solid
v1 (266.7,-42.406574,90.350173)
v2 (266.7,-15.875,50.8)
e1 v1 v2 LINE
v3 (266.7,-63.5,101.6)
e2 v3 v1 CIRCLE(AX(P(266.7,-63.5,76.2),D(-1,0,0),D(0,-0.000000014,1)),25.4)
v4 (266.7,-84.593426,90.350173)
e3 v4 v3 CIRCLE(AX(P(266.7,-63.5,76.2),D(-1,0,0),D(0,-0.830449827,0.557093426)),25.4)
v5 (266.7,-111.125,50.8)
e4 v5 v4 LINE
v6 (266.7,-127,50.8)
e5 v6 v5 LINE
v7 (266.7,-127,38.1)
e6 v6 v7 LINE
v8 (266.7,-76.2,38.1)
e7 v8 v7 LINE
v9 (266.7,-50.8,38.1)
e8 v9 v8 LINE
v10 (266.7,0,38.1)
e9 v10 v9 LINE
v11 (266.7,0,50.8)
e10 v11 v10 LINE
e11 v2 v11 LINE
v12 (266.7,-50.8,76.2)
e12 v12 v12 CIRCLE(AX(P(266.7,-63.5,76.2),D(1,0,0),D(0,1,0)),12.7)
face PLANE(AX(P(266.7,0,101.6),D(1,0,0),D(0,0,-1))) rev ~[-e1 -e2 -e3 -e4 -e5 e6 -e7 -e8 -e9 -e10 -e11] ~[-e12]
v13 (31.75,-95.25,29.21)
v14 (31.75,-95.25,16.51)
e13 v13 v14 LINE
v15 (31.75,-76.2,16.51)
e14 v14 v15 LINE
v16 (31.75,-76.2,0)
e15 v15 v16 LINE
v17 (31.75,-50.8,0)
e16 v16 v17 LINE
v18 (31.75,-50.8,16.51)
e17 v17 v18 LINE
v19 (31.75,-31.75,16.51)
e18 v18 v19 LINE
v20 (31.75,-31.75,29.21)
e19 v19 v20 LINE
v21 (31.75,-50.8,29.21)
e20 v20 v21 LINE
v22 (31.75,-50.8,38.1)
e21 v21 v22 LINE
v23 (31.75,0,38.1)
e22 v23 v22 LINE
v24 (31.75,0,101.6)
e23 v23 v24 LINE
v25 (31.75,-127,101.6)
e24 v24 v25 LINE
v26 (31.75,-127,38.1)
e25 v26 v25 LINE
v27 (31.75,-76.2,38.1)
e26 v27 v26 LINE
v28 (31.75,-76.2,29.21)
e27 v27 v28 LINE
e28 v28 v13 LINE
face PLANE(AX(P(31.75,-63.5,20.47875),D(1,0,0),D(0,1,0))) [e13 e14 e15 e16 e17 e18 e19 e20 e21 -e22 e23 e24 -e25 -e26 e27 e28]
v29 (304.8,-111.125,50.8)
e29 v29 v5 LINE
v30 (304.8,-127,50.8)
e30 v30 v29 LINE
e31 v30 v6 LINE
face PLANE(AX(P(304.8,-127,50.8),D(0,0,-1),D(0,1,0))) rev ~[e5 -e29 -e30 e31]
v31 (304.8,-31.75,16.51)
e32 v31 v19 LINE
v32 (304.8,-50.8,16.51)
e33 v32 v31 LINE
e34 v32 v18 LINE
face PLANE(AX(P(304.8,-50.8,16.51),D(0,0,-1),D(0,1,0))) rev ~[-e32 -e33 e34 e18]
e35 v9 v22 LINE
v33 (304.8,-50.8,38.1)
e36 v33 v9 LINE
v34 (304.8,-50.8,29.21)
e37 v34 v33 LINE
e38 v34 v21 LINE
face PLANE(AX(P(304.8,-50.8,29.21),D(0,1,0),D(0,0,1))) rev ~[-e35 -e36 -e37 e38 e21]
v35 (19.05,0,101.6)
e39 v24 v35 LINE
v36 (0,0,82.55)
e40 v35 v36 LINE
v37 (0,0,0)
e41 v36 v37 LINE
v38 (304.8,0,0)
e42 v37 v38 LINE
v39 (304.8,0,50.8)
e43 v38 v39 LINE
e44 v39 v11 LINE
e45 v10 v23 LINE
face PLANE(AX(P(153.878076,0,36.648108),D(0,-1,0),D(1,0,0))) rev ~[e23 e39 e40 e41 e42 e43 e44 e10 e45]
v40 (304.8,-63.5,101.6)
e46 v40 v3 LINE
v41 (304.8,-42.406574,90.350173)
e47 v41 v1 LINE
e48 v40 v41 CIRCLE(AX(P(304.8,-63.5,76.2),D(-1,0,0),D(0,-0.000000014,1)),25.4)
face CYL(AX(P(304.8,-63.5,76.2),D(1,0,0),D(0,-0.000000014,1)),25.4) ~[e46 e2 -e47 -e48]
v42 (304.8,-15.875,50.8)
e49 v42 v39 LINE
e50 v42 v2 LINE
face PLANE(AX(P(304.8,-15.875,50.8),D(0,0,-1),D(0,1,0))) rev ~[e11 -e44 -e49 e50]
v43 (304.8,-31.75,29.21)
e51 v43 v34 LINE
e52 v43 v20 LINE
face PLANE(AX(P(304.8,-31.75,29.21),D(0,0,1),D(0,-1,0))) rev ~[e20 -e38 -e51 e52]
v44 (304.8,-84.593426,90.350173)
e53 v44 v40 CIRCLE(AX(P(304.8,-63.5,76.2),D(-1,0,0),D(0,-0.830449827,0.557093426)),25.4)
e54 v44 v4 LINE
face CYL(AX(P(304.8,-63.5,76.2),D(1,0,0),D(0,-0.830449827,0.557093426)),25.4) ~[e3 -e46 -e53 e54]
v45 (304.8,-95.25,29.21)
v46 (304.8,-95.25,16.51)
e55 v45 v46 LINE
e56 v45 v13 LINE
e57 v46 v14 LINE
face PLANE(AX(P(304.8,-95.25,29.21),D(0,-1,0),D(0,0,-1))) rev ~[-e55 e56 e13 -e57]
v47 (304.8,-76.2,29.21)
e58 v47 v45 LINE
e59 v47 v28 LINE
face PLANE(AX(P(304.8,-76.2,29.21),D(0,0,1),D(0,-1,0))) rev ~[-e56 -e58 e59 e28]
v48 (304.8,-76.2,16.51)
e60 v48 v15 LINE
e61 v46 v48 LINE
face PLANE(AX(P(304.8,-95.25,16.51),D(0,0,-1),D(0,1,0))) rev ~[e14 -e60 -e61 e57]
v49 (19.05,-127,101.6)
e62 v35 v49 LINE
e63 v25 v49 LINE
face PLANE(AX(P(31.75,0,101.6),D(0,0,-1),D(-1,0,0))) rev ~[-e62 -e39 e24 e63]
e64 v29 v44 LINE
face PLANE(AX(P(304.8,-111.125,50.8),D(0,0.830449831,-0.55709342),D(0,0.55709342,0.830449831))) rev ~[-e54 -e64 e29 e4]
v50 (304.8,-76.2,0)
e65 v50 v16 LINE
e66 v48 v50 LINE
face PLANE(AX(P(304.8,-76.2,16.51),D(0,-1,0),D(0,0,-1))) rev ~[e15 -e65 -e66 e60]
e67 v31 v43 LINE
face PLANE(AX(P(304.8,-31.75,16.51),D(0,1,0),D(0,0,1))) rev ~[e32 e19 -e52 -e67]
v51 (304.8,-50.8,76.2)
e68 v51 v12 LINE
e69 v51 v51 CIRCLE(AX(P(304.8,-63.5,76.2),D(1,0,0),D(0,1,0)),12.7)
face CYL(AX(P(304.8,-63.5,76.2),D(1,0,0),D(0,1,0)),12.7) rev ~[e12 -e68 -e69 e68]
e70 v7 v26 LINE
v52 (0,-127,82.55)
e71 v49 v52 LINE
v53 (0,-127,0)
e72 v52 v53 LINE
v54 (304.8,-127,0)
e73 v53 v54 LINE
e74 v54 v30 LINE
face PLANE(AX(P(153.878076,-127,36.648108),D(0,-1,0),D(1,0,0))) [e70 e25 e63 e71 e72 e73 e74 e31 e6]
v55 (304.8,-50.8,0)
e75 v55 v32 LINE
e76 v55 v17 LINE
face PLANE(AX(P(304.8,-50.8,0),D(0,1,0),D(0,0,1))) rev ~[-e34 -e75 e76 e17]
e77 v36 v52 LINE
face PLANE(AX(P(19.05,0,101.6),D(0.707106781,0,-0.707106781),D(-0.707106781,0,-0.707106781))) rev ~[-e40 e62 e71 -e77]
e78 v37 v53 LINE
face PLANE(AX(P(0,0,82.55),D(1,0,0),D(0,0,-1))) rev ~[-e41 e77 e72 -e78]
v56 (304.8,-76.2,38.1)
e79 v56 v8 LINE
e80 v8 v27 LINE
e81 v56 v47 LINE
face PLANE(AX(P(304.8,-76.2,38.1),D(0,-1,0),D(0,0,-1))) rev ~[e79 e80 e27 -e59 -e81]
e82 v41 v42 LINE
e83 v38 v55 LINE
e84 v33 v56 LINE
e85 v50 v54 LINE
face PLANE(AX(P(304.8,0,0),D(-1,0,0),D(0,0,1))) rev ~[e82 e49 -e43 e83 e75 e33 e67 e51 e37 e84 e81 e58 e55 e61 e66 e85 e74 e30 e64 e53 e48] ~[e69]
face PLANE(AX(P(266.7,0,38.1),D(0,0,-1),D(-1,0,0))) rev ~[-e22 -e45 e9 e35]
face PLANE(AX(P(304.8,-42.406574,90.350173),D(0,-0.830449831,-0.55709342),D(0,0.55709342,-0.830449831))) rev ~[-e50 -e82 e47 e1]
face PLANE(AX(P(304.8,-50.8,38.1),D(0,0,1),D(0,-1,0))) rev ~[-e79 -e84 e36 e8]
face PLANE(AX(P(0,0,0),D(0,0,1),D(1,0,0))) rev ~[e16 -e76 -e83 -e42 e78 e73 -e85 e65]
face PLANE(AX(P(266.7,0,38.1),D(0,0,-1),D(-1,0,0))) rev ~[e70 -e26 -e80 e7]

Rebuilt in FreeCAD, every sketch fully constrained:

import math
import FreeCAD as App
import Part
import Sketcher
Q = App.Units.Quantity


def add_polygon(sketch, points):
    """Adds a closed chain of lines whose ends are joined by coincident constraints."""
    first, n = sketch.GeometryCount, len(points)
    for a, b in zip(points, points[1:] + points[:1]):
        sketch.addGeometry(Part.LineSegment(App.Vector(*a, 0), App.Vector(*b, 0)), False)
    for i in range(n):
        sketch.addConstraint(Sketcher.Constraint("Coincident", first + i, 2, first + (i + 1) % n, 1))

doc = App.newDocument("Part")
params = doc.addObject("Spreadsheet::Sheet", "Params")
for row, (alias, value) in enumerate([
    ("sketch1_width", "12 in"),
    ("sketch1_height", "4 in"),
    ("sketch1_width2", "1.5 in"),
    ("sketch1_width3", "0.5 in"),
    ("sketch1_height2", "2.5 in"),
    ("pad1_length", "5 in"),
    ("sketch2_diameter", "1 in"),
    ("sketch2_radius", "1 in"),
    ("sketch2_height", "2 in"),
    ("sketch2_width", "2.5 in"),
    ("sketch2_width2", "0.625 in"),
    ("pocket1_length", "1.5 in"),
    ("sketch3_width", "1 in"),
    ("sketch3_height", "0.5 in"),
    ("sketch3_width2", "0.75 in"),
    ("sketch3_height2", "0.65 in"),
    ("sketch3_height3", "0.35 in"),
    ("pocket2_length", "10.75 in"),
], start=1):
    params.set(f"A{row}", alias)
    params.set(f"B{row}", "=" + value)
    params.setAlias(f"B{row}", alias)

body = doc.addObject("PartDesign::Body", "Body")

# Sketch on XZ plane
sketch1 = doc.addObject("Sketcher::SketchObject", "Sketch")
body.addObject(sketch1)
sketch1.AttachmentSupport = (doc.XZ_Plane, [""])
sketch1.MapMode = "FlatFace"
add_polygon(sketch1, [(0, 83), (0, 0), (305, 0), (305, 102), (267, 102), (267, 38), (32, 38), (32, 102), (19, 102)])  # lines 0-8
sketch1.addConstraint(Sketcher.Constraint("Vertical", 0))
sketch1.addConstraint(Sketcher.Constraint("Horizontal", 1))
sketch1.addConstraint(Sketcher.Constraint("Vertical", 2))
sketch1.addConstraint(Sketcher.Constraint("Horizontal", 3))
sketch1.addConstraint(Sketcher.Constraint("Vertical", 4))
sketch1.addConstraint(Sketcher.Constraint("Horizontal", 5))
sketch1.addConstraint(Sketcher.Constraint("Vertical", 6))
sketch1.addConstraint(Sketcher.Constraint("Horizontal", 7))
sketch1.addConstraint(Sketcher.Constraint("Coincident", 0, 2, -1, 1))
sketch1.addConstraint(Sketcher.Constraint("Horizontal", 3, 2, 6, 2))
sketch1.addConstraint(Sketcher.Constraint("DistanceX", 1, 1, 1, 2, Q("12 in")))
sketch1.addConstraint(Sketcher.Constraint("DistanceY", 2, 1, 2, 2, Q("4 in")))
sketch1.addConstraint(Sketcher.Constraint("DistanceX", 3, 2, 3, 1, Q("1.5 in")))
sketch1.addConstraint(Sketcher.Constraint("DistanceX", 7, 2, 7, 1, Q("0.5 in")))
sketch1.addConstraint(Sketcher.Constraint("DistanceY", 4, 2, 4, 1, Q("2.5 in")))
sketch1.addConstraint(Sketcher.Constraint("Angle", 8, Q("-135 deg")))
sketch1.addConstraint(Sketcher.Constraint("DistanceX", 5, 2, 5, 1, Q("9.25 in")))
sketch1.setExpression("Constraints[19]", "Params.sketch1_width")
sketch1.setExpression("Constraints[20]", "Params.sketch1_height")
sketch1.setExpression("Constraints[21]", "Params.sketch1_width2")
sketch1.setExpression("Constraints[22]", "Params.sketch1_width3")
sketch1.setExpression("Constraints[23]", "Params.sketch1_height2")
pad1 = doc.addObject("PartDesign::Pad", "Pad")
body.addObject(pad1)
pad1.Profile = sketch1
pad1.setExpression("Length", "Params.pad1_length")

# Sketch on YZ plane
sketch2 = doc.addObject("Sketcher::SketchObject", "Sketch001")
body.addObject(sketch2)
sketch2.AttachmentSupport = (doc.YZ_Plane, [""])
sketch2.MapMode = "FlatFace"
sketch2.AttachmentOffset = App.Placement(App.Vector(0, 0, 12 * 25.4), App.Rotation())
sketch2.addGeometry(Part.LineSegment(App.Vector(0, 102, 0), App.Vector(-64, 102, 0)), False)
sketch2.addGeometry(Part.ArcOfCircle(Part.Circle(App.Vector(-63, 76, 0), App.Vector(0, 0, 1), 25), math.radians(34), math.radians(90)), False)
sketch2.addGeometry(Part.LineSegment(App.Vector(-42, 90, 0), App.Vector(-16, 51, 0)), False)
sketch2.addGeometry(Part.LineSegment(App.Vector(-16, 51, 0), App.Vector(0, 51, 0)), False)
sketch2.addGeometry(Part.LineSegment(App.Vector(0, 51, 0), App.Vector(0, 102, 0)), False)
sketch2.addGeometry(Part.LineSegment(App.Vector(-127, 102, 0), App.Vector(-127, 51, 0)), False)
sketch2.addGeometry(Part.LineSegment(App.Vector(-127, 51, 0), App.Vector(-111, 51, 0)), False)
sketch2.addGeometry(Part.LineSegment(App.Vector(-111, 51, 0), App.Vector(-85, 90, 0)), False)
sketch2.addGeometry(Part.ArcOfCircle(Part.Circle(App.Vector(-64, 76, 0), App.Vector(0, 0, 1), 25), math.radians(90), math.radians(146)), False)
sketch2.addGeometry(Part.LineSegment(App.Vector(-64, 102, 0), App.Vector(-127, 102, 0)), False)
sketch2.addGeometry(Part.Circle(App.Vector(-64, 76, 0), App.Vector(0, 0, 1), 13), False)
sketch2.addConstraint(Sketcher.Constraint("Tangent", 0, 2, 1, 2))
sketch2.addConstraint(Sketcher.Constraint("Tangent", 1, 1, 2, 1))
sketch2.addConstraint(Sketcher.Constraint("Coincident", 2, 2, 3, 1))
sketch2.addConstraint(Sketcher.Constraint("Coincident", 3, 2, 4, 1))
sketch2.addConstraint(Sketcher.Constraint("Coincident", 4, 2, 0, 1))
sketch2.addConstraint(Sketcher.Constraint("Coincident", 5, 2, 6, 1))
sketch2.addConstraint(Sketcher.Constraint("Coincident", 6, 2, 7, 1))
sketch2.addConstraint(Sketcher.Constraint("Tangent", 7, 2, 8, 2))
sketch2.addConstraint(Sketcher.Constraint("Tangent", 8, 1, 9, 1))
sketch2.addConstraint(Sketcher.Constraint("Coincident", 9, 2, 5, 1))
sketch2.addConstraint(Sketcher.Constraint("Horizontal", 0))
sketch2.addConstraint(Sketcher.Constraint("Horizontal", 3))
sketch2.addConstraint(Sketcher.Constraint("Vertical", 4))
sketch2.addConstraint(Sketcher.Constraint("Vertical", 5))
sketch2.addConstraint(Sketcher.Constraint("Horizontal", 6))
sketch2.addConstraint(Sketcher.Constraint("Horizontal", 9))
sketch2.addConstraint(Sketcher.Constraint("Coincident", 8, 3, 1, 3))
sketch2.addConstraint(Sketcher.Constraint("Coincident", 10, 3, 1, 3))
sketch2.addConstraint(Sketcher.Constraint("Equal", 1, 8))
sketch2.addConstraint(Sketcher.Constraint("PointOnObject", 3, 2, -2))
sketch2.addConstraint(Sketcher.Constraint("Horizontal", 3, 2, 5, 2))
sketch2.addConstraint(Sketcher.Constraint("Horizontal", 1, 1, 7, 2))
sketch2.addConstraint(Sketcher.Constraint("Equal", 3, 6))
sketch2.addConstraint(Sketcher.Constraint("Diameter", 10, Q("1 in")))
sketch2.addConstraint(Sketcher.Constraint("Radius", 1, Q("1 in")))
sketch2.addConstraint(Sketcher.Constraint("DistanceY", 4, 1, 4, 2, Q("2 in")))
sketch2.addConstraint(Sketcher.Constraint("DistanceX", 0, 2, 0, 1, Q("2.5 in")))
sketch2.addConstraint(Sketcher.Constraint("DistanceY", -1, 1, 1, 3, Q("3 in")))
sketch2.addConstraint(Sketcher.Constraint("DistanceX", 3, 1, 3, 2, Q("0.625 in")))
sketch2.setExpression("Constraints[23]", "Params.sketch2_diameter")
sketch2.setExpression("Constraints[24]", "Params.sketch2_radius")
sketch2.setExpression("Constraints[25]", "Params.sketch2_height")
sketch2.setExpression("Constraints[26]", "Params.sketch2_width")
sketch2.setExpression("Constraints[28]", "Params.sketch2_width2")
pocket1 = doc.addObject("PartDesign::Pocket", "Pocket")
body.addObject(pocket1)
pocket1.Profile = sketch2
pocket1.setExpression("Length", "Params.pocket1_length")

# Sketch on YZ plane
sketch3 = doc.addObject("Sketcher::SketchObject", "Sketch002")
body.addObject(sketch3)
sketch3.AttachmentSupport = (doc.YZ_Plane, [""])
sketch3.MapMode = "FlatFace"
sketch3.AttachmentOffset = App.Placement(App.Vector(0, 0, 12 * 25.4), App.Rotation())
add_polygon(sketch3, [(-76, 17), (-76, 0), (-51, 0), (-51, 17), (-32, 17), (-32, 29), (-51, 29), (-51, 38), (-76, 38), (-76, 29), (-95, 29), (-95, 17)])  # lines 0-11
sketch3.addConstraint(Sketcher.Constraint("Vertical", 0))
sketch3.addConstraint(Sketcher.Constraint("Horizontal", 1))
sketch3.addConstraint(Sketcher.Constraint("Vertical", 2))
sketch3.addConstraint(Sketcher.Constraint("Horizontal", 3))
sketch3.addConstraint(Sketcher.Constraint("Vertical", 4))
sketch3.addConstraint(Sketcher.Constraint("Horizontal", 5))
sketch3.addConstraint(Sketcher.Constraint("Vertical", 6))
sketch3.addConstraint(Sketcher.Constraint("Horizontal", 7))
sketch3.addConstraint(Sketcher.Constraint("Vertical", 8))
sketch3.addConstraint(Sketcher.Constraint("Horizontal", 9))
sketch3.addConstraint(Sketcher.Constraint("Vertical", 10))
sketch3.addConstraint(Sketcher.Constraint("Horizontal", 11))
sketch3.addConstraint(Sketcher.Constraint("PointOnObject", 0, 2, -1))
sketch3.addConstraint(Sketcher.Constraint("Horizontal", 5, 2, 8, 2))
sketch3.addConstraint(Sketcher.Constraint("Horizontal", 3, 2, 10, 2))
sketch3.addConstraint(Sketcher.Constraint("Vertical", 2, 2, 5, 2))
sketch3.addConstraint(Sketcher.Constraint("Vertical", 0, 2, 7, 2))
sketch3.addConstraint(Sketcher.Constraint("Equal", 5, 9))
sketch3.addConstraint(Sketcher.Constraint("DistanceX", 1, 1, 1, 2, Q("1 in")))
sketch3.addConstraint(Sketcher.Constraint("DistanceY", 4, 1, 4, 2, Q("0.5 in")))
sketch3.addConstraint(Sketcher.Constraint("DistanceX", 0, 2, -1, 1, Q("3 in")))
sketch3.addConstraint(Sketcher.Constraint("DistanceX", 3, 1, 3, 2, Q("0.75 in")))
sketch3.addConstraint(Sketcher.Constraint("DistanceY", 0, 2, 0, 1, Q("0.65 in")))
sketch3.addConstraint(Sketcher.Constraint("DistanceY", 6, 1, 6, 2, Q("0.35 in")))
sketch3.setExpression("Constraints[30]", "Params.sketch3_width")
sketch3.setExpression("Constraints[31]", "Params.sketch3_height")
sketch3.setExpression("Constraints[33]", "Params.sketch3_width2")
sketch3.setExpression("Constraints[34]", "Params.sketch3_height2")
sketch3.setExpression("Constraints[35]", "Params.sketch3_height3")
pocket2 = doc.addObject("PartDesign::Pocket", "Pocket001")
body.addObject(pocket2)
pocket2.Profile = sketch3
pocket2.setExpression("Length", "Params.pocket2_length")

doc.recompute()
